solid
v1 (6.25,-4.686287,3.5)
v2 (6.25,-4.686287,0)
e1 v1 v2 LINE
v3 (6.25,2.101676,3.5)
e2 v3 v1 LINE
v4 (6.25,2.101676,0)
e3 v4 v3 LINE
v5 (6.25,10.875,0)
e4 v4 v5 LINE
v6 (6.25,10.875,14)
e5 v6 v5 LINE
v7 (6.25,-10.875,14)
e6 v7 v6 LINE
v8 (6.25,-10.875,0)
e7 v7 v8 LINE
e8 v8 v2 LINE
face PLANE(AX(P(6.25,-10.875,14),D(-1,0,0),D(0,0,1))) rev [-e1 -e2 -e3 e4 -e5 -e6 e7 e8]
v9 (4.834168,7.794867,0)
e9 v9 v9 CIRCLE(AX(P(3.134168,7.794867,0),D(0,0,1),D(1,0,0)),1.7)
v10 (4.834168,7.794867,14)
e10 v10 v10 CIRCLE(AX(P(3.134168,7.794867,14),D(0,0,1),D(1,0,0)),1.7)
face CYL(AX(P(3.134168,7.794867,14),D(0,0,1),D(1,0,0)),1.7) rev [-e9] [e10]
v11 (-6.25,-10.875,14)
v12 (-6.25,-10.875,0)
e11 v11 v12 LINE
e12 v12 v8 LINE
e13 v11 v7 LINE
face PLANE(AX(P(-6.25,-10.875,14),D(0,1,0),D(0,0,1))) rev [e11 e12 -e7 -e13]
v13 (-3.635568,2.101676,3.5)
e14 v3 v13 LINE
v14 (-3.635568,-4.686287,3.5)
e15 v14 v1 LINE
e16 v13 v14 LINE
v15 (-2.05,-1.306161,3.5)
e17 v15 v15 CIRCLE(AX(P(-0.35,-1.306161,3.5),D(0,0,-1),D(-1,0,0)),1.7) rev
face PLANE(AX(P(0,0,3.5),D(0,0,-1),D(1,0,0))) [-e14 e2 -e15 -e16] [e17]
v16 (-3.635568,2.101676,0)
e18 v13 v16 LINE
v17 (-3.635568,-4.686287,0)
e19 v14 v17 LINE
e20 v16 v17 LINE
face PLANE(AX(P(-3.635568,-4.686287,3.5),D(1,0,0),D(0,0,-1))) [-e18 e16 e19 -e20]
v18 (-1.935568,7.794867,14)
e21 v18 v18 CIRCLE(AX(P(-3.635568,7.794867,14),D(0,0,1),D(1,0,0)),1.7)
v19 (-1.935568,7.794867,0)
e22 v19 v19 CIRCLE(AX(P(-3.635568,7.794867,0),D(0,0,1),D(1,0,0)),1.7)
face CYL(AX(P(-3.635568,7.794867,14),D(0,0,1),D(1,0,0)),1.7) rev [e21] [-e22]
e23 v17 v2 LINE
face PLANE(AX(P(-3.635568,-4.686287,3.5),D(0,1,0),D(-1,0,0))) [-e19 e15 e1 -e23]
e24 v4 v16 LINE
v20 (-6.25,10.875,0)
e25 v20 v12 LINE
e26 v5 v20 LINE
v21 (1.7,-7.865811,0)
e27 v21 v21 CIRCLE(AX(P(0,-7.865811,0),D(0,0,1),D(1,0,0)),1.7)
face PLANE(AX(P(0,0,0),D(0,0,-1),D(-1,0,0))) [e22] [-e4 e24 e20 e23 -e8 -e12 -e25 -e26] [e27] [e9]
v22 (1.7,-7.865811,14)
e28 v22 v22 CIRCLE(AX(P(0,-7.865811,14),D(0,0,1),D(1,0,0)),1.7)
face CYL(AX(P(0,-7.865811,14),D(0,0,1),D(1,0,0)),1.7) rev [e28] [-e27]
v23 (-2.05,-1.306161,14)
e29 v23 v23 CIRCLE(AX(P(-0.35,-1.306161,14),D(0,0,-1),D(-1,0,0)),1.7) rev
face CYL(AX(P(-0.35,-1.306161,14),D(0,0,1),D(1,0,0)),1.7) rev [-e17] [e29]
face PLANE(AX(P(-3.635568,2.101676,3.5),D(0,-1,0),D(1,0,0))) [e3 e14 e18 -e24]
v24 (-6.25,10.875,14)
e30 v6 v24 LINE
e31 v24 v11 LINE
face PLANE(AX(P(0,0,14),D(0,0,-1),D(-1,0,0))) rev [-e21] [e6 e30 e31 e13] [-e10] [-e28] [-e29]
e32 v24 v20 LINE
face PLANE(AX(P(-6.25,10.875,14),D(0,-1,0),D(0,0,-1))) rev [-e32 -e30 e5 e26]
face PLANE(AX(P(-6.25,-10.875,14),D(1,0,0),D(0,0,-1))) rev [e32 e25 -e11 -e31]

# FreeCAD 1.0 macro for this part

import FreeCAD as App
import Part
import Sketcher
from FreeCAD import Vector

doc = App.newDocument("Part")
body = doc.addObject("PartDesign::Body", "Body")

sketch1 = body.newObject("Sketcher::SketchObject", "Sketch")
sketch1.AttachmentSupport = (doc.getObject("XY_Plane"), [""])
sketch1.MapMode = "FlatFace"
sketch1.addGeometry([
    Part.LineSegment(Vector(-6, 11, 0), Vector(-6, -11, 0)),
    Part.LineSegment(Vector(-6, -11, 0), Vector(6, -11, 0)),
    Part.LineSegment(Vector(6, -11, 0), Vector(6, 11, 0)),
    Part.LineSegment(Vector(6, 11, 0), Vector(-6, 11, 0)),
], False)
sketch1.addConstraint([
    Sketcher.Constraint("Coincident", 0, 2, 1, 1),
    Sketcher.Constraint("Coincident", 1, 2, 2, 1),
    Sketcher.Constraint("Coincident", 2, 2, 3, 1),
    Sketcher.Constraint("Coincident", 3, 2, 0, 1),
    Sketcher.Constraint("Vertical", 0),
    Sketcher.Constraint("Horizontal", 1),
    Sketcher.Constraint("Vertical", 2),
    Sketcher.Constraint("Horizontal", 3),
    Sketcher.Constraint("Symmetric", 0, 2, 2, 2, -1, 1),
    Sketcher.Constraint("DistanceX", 1, 1, 1, 2, 12.5),
    Sketcher.Constraint("DistanceY", 0, 2, 0, 1, 21.75),
])
pad1 = body.newObject("PartDesign::Pad", "Pad")
pad1.Profile = sketch1
pad1.Length = 14

sketch2 = body.newObject("Sketcher::SketchObject", "Sketch001")
sketch2.AttachmentSupport = (doc.getObject("XY_Plane"), [""])
sketch2.MapMode = "FlatFace"
sketch2.AttachmentOffset = App.Placement(Vector(0, 0, 14), App.Rotation())
sketch2.addGeometry([
    Part.LineSegment(Vector(-4, 2, 0), Vector(-4, -5, 0)),
    Part.LineSegment(Vector(-4, -5, 0), Vector(7, -5, 0)),
    Part.LineSegment(Vector(7, -5, 0), Vector(7, 2, 0)),
    Part.LineSegment(Vector(7, 2, 0), Vector(-4, 2, 0)),
], False)
sketch2.addConstraint([
    Sketcher.Constraint("Coincident", 0, 2, 1, 1),
    Sketcher.Constraint("Coincident", 1, 2, 2, 1),
    Sketcher.Constraint("Coincident", 2, 2, 3, 1),
    Sketcher.Constraint("Coincident", 3, 2, 0, 1),
    Sketcher.Constraint("Vertical", 0),
    Sketcher.Constraint("Horizontal", 1),
    Sketcher.Constraint("Vertical", 2),
    Sketcher.Constraint("Horizontal", 3),
    Sketcher.Constraint("DistanceX", 1, 1, 1, 2, 10.57941),
    Sketcher.Constraint("DistanceY", 0, 2, 0, 1, 6.787962),
    Sketcher.Constraint("DistanceX", 0, 2, -1, 1, 3.635568),
    Sketcher.Constraint("DistanceY", 0, 2, -1, 1, 4.686287),
])
pocket1 = body.newObject("PartDesign::Pocket", "Pocket")
pocket1.Profile = sketch2
pocket1.Length = 3.5

sketch3 = body.newObject("Sketcher::SketchObject", "Sketch002")
sketch3.AttachmentSupport = (doc.getObject("XY_Plane"), [""])
sketch3.MapMode = "FlatFace"
sketch3.AttachmentOffset = App.Placement(Vector(0, 0, 14), App.Rotation())
sketch3.addGeometry(Part.Circle(Vector(-0.3, -1.3, 0), Vector(0, 0, 1), 1.7), False)
sketch3.addConstraint([
    Sketcher.Constraint("Diameter", 0, 3.4),
    Sketcher.Constraint("DistanceX", 0, 3, -1, 1, 0.35),
    Sketcher.Constraint("DistanceY", 0, 3, -1, 1, 1.306161),
])
doc.recompute()
hole = body.newObject("PartDesign::Hole", "Hole")
hole.Profile = sketch3
hole.ThreadType = "None"
hole.Diameter = 3.4
hole.DepthType = "ThroughAll"

sketch4 = body.newObject("Sketcher::SketchObject", "Sketch003")
sketch4.AttachmentSupport = (doc.getObject("XY_Plane"), [""])
sketch4.MapMode = "FlatFace"
sketch4.AttachmentOffset = App.Placement(Vector(0, 0, 14), App.Rotation())
sketch4.addGeometry([
    Part.Circle(Vector(-3.6, 7.8, 0), Vector(0, 0, 1), 1.7),
    Part.Circle(Vector(3.1, 7.8, 0), Vector(0, 0, 1), 1.7),
    Part.Circle(Vector(0, -7.9, 0), Vector(0, 0, 1), 1.7),
], False)
sketch4.addConstraint([
    Sketcher.Constraint("Equal", 0, 1),
    Sketcher.Constraint("Equal", 1, 2),
    Sketcher.Constraint("PointOnObject", 2, 3, -2),
    Sketcher.Constraint("Horizontal", 0, 3, 1, 3),
    Sketcher.Constraint("Diameter", 0, 3.4),
    Sketcher.Constraint("DistanceX", -1, 1, 1, 3, 3.134168),
    Sketcher.Constraint("DistanceY", 2, 3, -1, 1, 7.865811),
    Sketcher.Constraint("DistanceY", 2, 3, 1, 3, 15.660679),
    Sketcher.Constraint("DistanceX", 0, 3, -1, 1, 3.635568),
])
doc.recompute()
hole2 = body.newObject("PartDesign::Hole", "Hole001")
hole2.Profile = sketch4
hole2.ThreadType = "None"
hole2.Diameter = 3.4
hole2.DepthType = "ThroughAll"
doc.recompute()

datumplane = body.newObject("PartDesign::Plane", "DatumPlane")
datumplane.AttachmentSupport = (doc.getObject("XY_Plane"), [""])
datumplane.MapMode = "FlatFace"
datumplane.AttachmentOffset = App.Placement(Vector(0, 0, 7), App.Rotation())
mirrored = body.newObject("PartDesign::Mirrored", "Mirrored")
mirrored.Originals = [pocket1]
mirrored.MirrorPlane = (datumplane, [""])
body.Tip = mirrored

sketch5 = body.newObject("Sketcher::SketchObject", "Sketch004")
sketch5.AttachmentSupport = (doc.getObject("XY_Plane"), [""])
sketch5.MapMode = "FlatFace"
sketch5.AttachmentOffset = App.Placement(Vector(0, 0, 10.5), App.Rotation())
sketch5.addGeometry([
    Part.LineSegment(Vector(-3.6, 2.1, 0), Vector(-3.6, -4.7, 0)),
    Part.LineSegment(Vector(-3.6, -4.7, 0), Vector(6.2, -4.7, 0)),
    Part.LineSegment(Vector(6.2, -4.7, 0), Vector(6.2, 2.1, 0)),
    Part.LineSegment(Vector(6.2, 2.1, 0), Vector(-3.6, 2.1, 0)),
    Part.Circle(Vector(-0.3, -1.3, 0), Vector(0, 0, 1), 1.7),
], False)
sketch5.addConstraint([
    Sketcher.Constraint("Coincident", 0, 2, 1, 1),
    Sketcher.Constraint("Coincident", 1, 2, 2, 1),
    Sketcher.Constraint("Coincident", 2, 2, 3, 1),
    Sketcher.Constraint("Coincident", 3, 2, 0, 1),
    Sketcher.Constraint("Vertical", 0),
    Sketcher.Constraint("Horizontal", 1),
    Sketcher.Constraint("Vertical", 2),
    Sketcher.Constraint("Horizontal", 3),
    Sketcher.Constraint("Diameter", 4, 3.4),
    Sketcher.Constraint("DistanceX", 4, 3, 1, 2, 6.6),
    Sketcher.Constraint("DistanceX", 4, 3, -1, 1, 0.35),
    Sketcher.Constraint("DistanceX", 1, 1, 1, 2, 9.885568),
    Sketcher.Constraint("DistanceY", 0, 2, 0, 1, 6.787962),
    Sketcher.Constraint("DistanceY", 4, 3, -1, 1, 1.306161),
    Sketcher.Constraint("DistanceY", 0, 2, -1, 1, 4.686287),
])
pad2 = body.newObject("PartDesign::Pad", "Pad001")
pad2.Profile = sketch5
pad2.Length = 3.5

doc.recompute()
